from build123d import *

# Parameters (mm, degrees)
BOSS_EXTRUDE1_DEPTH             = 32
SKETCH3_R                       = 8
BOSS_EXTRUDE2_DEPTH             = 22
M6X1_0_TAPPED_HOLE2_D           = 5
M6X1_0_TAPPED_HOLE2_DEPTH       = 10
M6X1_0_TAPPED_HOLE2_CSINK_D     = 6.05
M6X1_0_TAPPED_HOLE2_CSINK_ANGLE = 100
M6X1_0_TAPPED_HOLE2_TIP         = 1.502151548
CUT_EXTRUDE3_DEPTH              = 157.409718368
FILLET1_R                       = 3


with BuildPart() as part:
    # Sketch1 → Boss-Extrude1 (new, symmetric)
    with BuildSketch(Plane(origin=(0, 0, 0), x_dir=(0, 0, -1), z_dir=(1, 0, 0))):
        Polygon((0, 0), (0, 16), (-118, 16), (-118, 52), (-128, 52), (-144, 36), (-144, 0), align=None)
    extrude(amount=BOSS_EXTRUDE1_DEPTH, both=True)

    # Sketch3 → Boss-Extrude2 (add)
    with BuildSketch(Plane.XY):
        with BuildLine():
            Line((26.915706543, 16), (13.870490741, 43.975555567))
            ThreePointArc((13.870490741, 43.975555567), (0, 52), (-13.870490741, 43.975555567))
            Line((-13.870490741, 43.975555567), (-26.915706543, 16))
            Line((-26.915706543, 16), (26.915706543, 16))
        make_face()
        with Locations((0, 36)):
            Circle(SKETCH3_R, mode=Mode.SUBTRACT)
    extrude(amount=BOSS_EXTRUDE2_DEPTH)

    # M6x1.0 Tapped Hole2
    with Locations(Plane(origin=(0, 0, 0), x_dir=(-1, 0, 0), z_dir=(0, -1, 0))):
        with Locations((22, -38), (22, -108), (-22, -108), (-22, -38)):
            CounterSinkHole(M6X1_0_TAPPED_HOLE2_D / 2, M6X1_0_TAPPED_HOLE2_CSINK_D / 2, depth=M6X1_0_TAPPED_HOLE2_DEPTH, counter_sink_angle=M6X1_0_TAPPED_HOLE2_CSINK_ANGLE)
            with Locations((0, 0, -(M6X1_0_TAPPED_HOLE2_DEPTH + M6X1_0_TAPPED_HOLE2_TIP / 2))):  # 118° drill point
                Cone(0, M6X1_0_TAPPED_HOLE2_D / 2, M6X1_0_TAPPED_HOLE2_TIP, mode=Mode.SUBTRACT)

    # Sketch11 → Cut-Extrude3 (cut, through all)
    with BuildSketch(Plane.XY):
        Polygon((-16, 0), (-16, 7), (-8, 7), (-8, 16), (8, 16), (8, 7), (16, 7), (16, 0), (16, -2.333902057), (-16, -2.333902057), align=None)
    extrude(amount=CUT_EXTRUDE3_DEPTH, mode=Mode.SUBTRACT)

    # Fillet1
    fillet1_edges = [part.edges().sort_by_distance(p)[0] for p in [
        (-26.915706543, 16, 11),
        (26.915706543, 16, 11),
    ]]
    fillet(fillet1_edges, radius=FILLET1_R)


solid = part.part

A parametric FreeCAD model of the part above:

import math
import FreeCAD as App
import Part
import Sketcher
Q = App.Units.Quantity


def edges_at(feature, points):
    """Names of the edges that pass closest to the given points."""
    edges = feature.Shape.Edges
    near = lambda p: min(range(len(edges)), key=lambda i: edges[i].distToShape(Part.Vertex(*p))[0])
    return sorted({f"Edge{near(p) + 1}" for p in points})


def add_polygon(sketch, points):
    """Adds a closed chain of lines whose ends are joined by coincident constraints."""
    first, n = sketch.GeometryCount, len(points)
    for a, b in zip(points, points[1:] + points[:1]):
        sketch.addGeometry(Part.LineSegment(App.Vector(*a, 0), App.Vector(*b, 0)), False)
    for i in range(n):
        sketch.addConstraint(Sketcher.Constraint("Coincident", first + i, 2, first + (i + 1) % n, 1))

doc = App.newDocument("Part")
body = doc.addObject("PartDesign::Body", "Body")

sketch1 = body.newObject("Sketcher::SketchObject", "Sketch")
sketch1.AttachmentSupport = (doc.getObject("YZ_Plane"), [""])
sketch1.MapMode = "FlatFace"
add_polygon(sketch1, [(0, 0), (16, 0), (16, 118), (52, 118), (52, 128), (36, 144), (0, 144)])
sketch1.addConstraint([
    Sketcher.Constraint("Horizontal", 0),
    Sketcher.Constraint("Vertical", 1),
    Sketcher.Constraint("Horizontal", 2),
    Sketcher.Constraint("Vertical", 3),
    Sketcher.Constraint("Horizontal", 5),
    Sketcher.Constraint("Vertical", 6),
    Sketcher.Constraint("Coincident", 6, 2, -1, 1),
    Sketcher.Constraint("Equal", 2, 5),
    Sketcher.Constraint("DistanceX", 0, 1, 0, 2, 16.0),
    Sketcher.Constraint("DistanceX", 2, 1, 2, 2, 36.0),
    Sketcher.Constraint("DistanceY", 1, 1, 1, 2, 118.0),
    Sketcher.Constraint("DistanceY", 3, 1, 3, 2, 10.0),
    Sketcher.Constraint("DistanceY", 6, 2, 6, 1, 144.0),
])
pad1 = body.newObject("PartDesign::Pad", "Pad")
pad1.Profile = sketch1
pad1.Length = 64
pad1.Midplane = True

sketch2 = body.newObject("Sketcher::SketchObject", "Sketch001")
sketch2.AttachmentSupport = (doc.getObject("XY_Plane"), [""])
sketch2.MapMode = "FlatFace"
sketch2.addGeometry([
    Part.LineSegment(App.Vector(26.915707, 16, 0), App.Vector(13.870491, 43.975556, 0)),
    Part.ArcOfCircle(Part.Circle(App.Vector(0, 36, 0), App.Vector(0, 0, 1), 16), math.radians(29.898974), math.radians(150.101026)),
    Part.LineSegment(App.Vector(-13.870491, 43.975556, 0), App.Vector(-26.915707, 16, 0)),
    Part.LineSegment(App.Vector(-26.915707, 16, 0), App.Vector(26.915707, 16, 0)),
    Part.Circle(App.Vector(0, 36, 0), App.Vector(0, 0, 1), 8),
], False)
sketch2.addConstraint([
    Sketcher.Constraint("Coincident", 0, 2, 1, 1),
    Sketcher.Constraint("Coincident", 1, 2, 2, 1),
    Sketcher.Constraint("Coincident", 2, 2, 3, 1),
    Sketcher.Constraint("Coincident", 3, 2, 0, 1),
    Sketcher.Constraint("Horizontal", 3),
    Sketcher.Constraint("Coincident", 4, 3, 1, 3),
    Sketcher.Constraint("Symmetric", 0, 2, 1, 2, -2),
    Sketcher.Constraint("Equal", 0, 2),
    Sketcher.Constraint("Diameter", 4, 16.0),
    Sketcher.Constraint("Radius", 1, 16.0),
    Sketcher.Constraint("Angle", 0, Q("115 deg")),
    Sketcher.Constraint("DistanceY", -1, 1, 1, 3, 36.0),
    Sketcher.Constraint("DistanceY", -1, 1, 2, 2, 16.0),
    Sketcher.Constraint("Distance", 0, 30.86761),
])
pad2 = body.newObject("PartDesign::Pad", "Pad001")
pad2.Profile = sketch2
pad2.Length = 22

sketch3 = body.newObject("Sketcher::SketchObject", "Sketch002")
sketch3.AttachmentSupport = (doc.getObject("XZ_Plane"), [""])
sketch3.MapMode = "FlatFace"
sketch3.addGeometry([
    Part.Circle(App.Vector(-22, 38, 0), App.Vector(0, 0, 1), 2.5),
    Part.Circle(App.Vector(-22, 108, 0), App.Vector(0, 0, 1), 2.5),
    Part.Circle(App.Vector(22, 108, 0), App.Vector(0, 0, 1), 2.5),
    Part.Circle(App.Vector(22, 38, 0), App.Vector(0, 0, 1), 2.5),
], False)
sketch3.addConstraint([
    Sketcher.Constraint("Equal", 0, 1),
    Sketcher.Constraint("Equal", 1, 2),
    Sketcher.Constraint("Equal", 2, 3),
    Sketcher.Constraint("Symmetric", 1, 3, 2, 3, -2),
    Sketcher.Constraint("Symmetric", 0, 3, 3, 3, -2),
    Sketcher.Constraint("Vertical", 0, 3, 1, 3),
    Sketcher.Constraint("Diameter", 0, 5.0),
    Sketcher.Constraint("DistanceX", 0, 3, -1, 1, 22.0),
    Sketcher.Constraint("DistanceY", -1, 1, 0, 3, 38.0),
    Sketcher.Constraint("DistanceY", -1, 1, 1, 3, 108.0),
])
doc.recompute()
hole = body.newObject("PartDesign::Hole", "Hole")
hole.Profile = sketch3
hole.ThreadType = "None"
hole.Diameter = 5
hole.DepthType = "Dimension"
hole.Depth = 10
hole.DrillPoint = "Angled"
hole.DrillPointAngle = 118
hole.HoleCutType = "Countersink"
hole.HoleCutDiameter = 6.05
hole.HoleCutCountersinkAngle = 100

sketch4 = body.newObject("Sketcher::SketchObject", "Sketch003")
sketch4.AttachmentSupport = (doc.getObject("XY_Plane"), [""])
sketch4.MapMode = "FlatFace"
add_polygon(sketch4, [(-16, 7), (-16, -2.333902), (16, -2.333902), (16, 7), (8, 7), (8, 16), (-8, 16), (-8, 7)])
sketch4.addConstraint([
    Sketcher.Constraint("Vertical", 0),
    Sketcher.Constraint("Horizontal", 1),
    Sketcher.Constraint("Vertical", 2),
    Sketcher.Constraint("Horizontal", 3),
    Sketcher.Constraint("Vertical", 4),
    Sketcher.Constraint("Horizontal", 5),
    Sketcher.Constraint("Vertical", 6),
    Sketcher.Constraint("Horizontal", 7),
    Sketcher.Constraint("Symmetric", 3, 2, 6, 2, -2),
    Sketcher.Constraint("Equal", 3, 7),
    Sketcher.Constraint("DistanceX", 1, 1, 1, 2, 32.0),
    Sketcher.Constraint("DistanceX", 3, 2, 3, 1, 8.0),
    Sketcher.Constraint("DistanceY", 4, 1, 4, 2, 9.0),
    Sketcher.Constraint("DistanceY", -1, 1, 2, 2, 7.0),
    Sketcher.Constraint("DistanceY", 0, 2, 0, 1, 9.333902),
])
pocket1 = body.newObject("PartDesign::Pocket", "Pocket")
pocket1.Profile = sketch4
pocket1.Type = "ThroughAll"
pocket1.Reversed = True
doc.recompute()

fillet = body.newObject("PartDesign::Fillet", "Fillet")
fillet.Base = (pocket1, edges_at(pocket1, [(-26.916, 16, 11), (26.916, 16, 11)]))
fillet.Radius = 3

doc.recompute()
